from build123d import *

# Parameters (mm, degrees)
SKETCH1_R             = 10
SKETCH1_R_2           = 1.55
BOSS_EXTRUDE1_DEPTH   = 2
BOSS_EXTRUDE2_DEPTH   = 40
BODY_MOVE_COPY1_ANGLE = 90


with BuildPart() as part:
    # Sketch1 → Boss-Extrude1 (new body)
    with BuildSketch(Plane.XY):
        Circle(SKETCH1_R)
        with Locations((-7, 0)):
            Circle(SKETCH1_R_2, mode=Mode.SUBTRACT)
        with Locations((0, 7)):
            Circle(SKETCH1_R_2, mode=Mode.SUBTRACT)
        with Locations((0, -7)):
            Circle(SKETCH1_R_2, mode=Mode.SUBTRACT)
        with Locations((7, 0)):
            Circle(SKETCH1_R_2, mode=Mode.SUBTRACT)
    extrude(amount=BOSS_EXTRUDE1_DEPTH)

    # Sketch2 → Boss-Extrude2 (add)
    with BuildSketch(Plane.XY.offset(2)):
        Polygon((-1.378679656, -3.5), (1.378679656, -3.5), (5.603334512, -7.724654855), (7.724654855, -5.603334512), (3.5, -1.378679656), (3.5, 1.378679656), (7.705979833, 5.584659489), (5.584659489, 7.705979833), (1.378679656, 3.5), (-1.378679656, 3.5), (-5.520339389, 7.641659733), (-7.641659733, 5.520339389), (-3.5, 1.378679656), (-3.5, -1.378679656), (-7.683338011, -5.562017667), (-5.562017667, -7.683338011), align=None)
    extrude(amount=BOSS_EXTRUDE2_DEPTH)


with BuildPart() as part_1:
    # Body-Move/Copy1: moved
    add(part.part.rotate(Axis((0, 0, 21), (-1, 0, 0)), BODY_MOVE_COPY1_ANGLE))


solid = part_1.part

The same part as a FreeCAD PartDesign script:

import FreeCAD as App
import Part
import Sketcher
from FreeCAD import Vector

doc = App.newDocument("Part")
body = doc.addObject("PartDesign::Body", "Body")

# Sketch on XY plane
sketch1 = body.newObject("Sketcher::SketchObject", "Sketch")
sketch1.AttachmentSupport = (doc.getObject("XY_Plane"), [""])
sketch1.MapMode = "FlatFace"
sketch1.addGeometry([
    Part.Circle(Vector(0, 0, 0), Vector(0, 0, 1), 10),  # 0
    Part.Circle(Vector(0, -7, 0), Vector(0, 0, 1), 1.6),  # 1
    Part.Circle(Vector(-7, 0, 0), Vector(0, 0, 1), 1.6),  # 2
    Part.Circle(Vector(0, 7, 0), Vector(0, 0, 1), 1.6),  # 3
    Part.Circle(Vector(7, 0, 0), Vector(0, 0, 1), 1.6),  # 4
], False)
sketch1.addConstraint([
    Sketcher.Constraint("Coincident", 0, 3, -1, 1),
    Sketcher.Constraint("Equal", 1, 2),
    Sketcher.Constraint("Equal", 2, 3),
    Sketcher.Constraint("Equal", 3, 4),
    Sketcher.Constraint("Symmetric", 1, 3, 3, 3, -1, 1),
    Sketcher.Constraint("Symmetric", 2, 3, 4, 3, -1, 1),
    Sketcher.Constraint("PointOnObject", 1, 3, -2),
    Sketcher.Constraint("PointOnObject", 2, 3, -1),
    Sketcher.Constraint("Diameter", 0, 20.0),
    Sketcher.Constraint("Diameter", 1, 3.1),
    Sketcher.Constraint("DistanceY", 1, 3, -1, 1, 7.0),
    Sketcher.Constraint("DistanceX", 2, 3, -1, 1, 7.0),
])
pad1 = body.newObject("PartDesign::Pad", "Pad")
pad1.Profile = sketch1
pad1.Length = 2

# Sketch on XY plane
sketch2 = body.newObject("Sketcher::SketchObject", "Sketch001")
sketch2.AttachmentSupport = (doc.getObject("XY_Plane"), [""])
sketch2.MapMode = "FlatFace"
sketch2.AttachmentOffset = App.Placement(Vector(0, 0, 2), App.Rotation())
sketch2.addGeometry([
    Part.LineSegment(Vector(-1.4, -3.5, 0), Vector(1.4, -3.5, 0)),  # 0
    Part.LineSegment(Vector(1.4, -3.5, 0), Vector(5.6, -7.7, 0)),  # 1
    Part.LineSegment(Vector(5.6, -7.7, 0), Vector(7.7, -5.6, 0)),  # 2
    Part.LineSegment(Vector(7.7, -5.6, 0), Vector(3.5, -1.4, 0)),  # 3
    Part.LineSegment(Vector(3.5, -1.4, 0), Vector(3.5, 1.4, 0)),  # 4
    Part.LineSegment(Vector(3.5, 1.4, 0), Vector(7.7, 5.6, 0)),  # 5
    Part.LineSegment(Vector(7.7, 5.6, 0), Vector(5.6, 7.7, 0)),  # 6
    Part.LineSegment(Vector(5.6, 7.7, 0), Vector(1.4, 3.5, 0)),  # 7
    Part.LineSegment(Vector(1.4, 3.5, 0), Vector(-1.4, 3.5, 0)),  # 8
    Part.LineSegment(Vector(-1.4, 3.5, 0), Vector(-5.5, 7.6, 0)),  # 9
    Part.LineSegment(Vector(-5.5, 7.6, 0), Vector(-7.6, 5.5, 0)),  # 10
    Part.LineSegment(Vector(-7.6, 5.5, 0), Vector(-3.5, 1.4, 0)),  # 11
    Part.LineSegment(Vector(-3.5, 1.4, 0), Vector(-3.5, -1.4, 0)),  # 12
    Part.LineSegment(Vector(-3.5, -1.4, 0), Vector(-7.7, -5.6, 0)),  # 13
    Part.LineSegment(Vector(-7.7, -5.6, 0), Vector(-5.6, -7.7, 0)),  # 14
    Part.LineSegment(Vector(-5.6, -7.7, 0), Vector(-1.4, -3.5, 0)),  # 15
], False)
sketch2.addConstraint([
    Sketcher.Constraint("Coincident", 0, 2, 1, 1),
    Sketcher.Constraint("Coincident", 1, 2, 2, 1),
    Sketcher.Constraint("Coincident", 2, 2, 3, 1),
    Sketcher.Constraint("Coincident", 3, 2, 4, 1),
    Sketcher.Constraint("Coincident", 4, 2, 5, 1),
    Sketcher.Constraint("Coincident", 5, 2, 6, 1),
    Sketcher.Constraint("Coincident", 6, 2, 7, 1),
    Sketcher.Constraint("Coincident", 7, 2, 8, 1),
    Sketcher.Constraint("Coincident", 8, 2, 9, 1),
    Sketcher.Constraint("Coincident", 9, 2, 10, 1),
    Sketcher.Constraint("Coincident", 10, 2, 11, 1),
    Sketcher.Constraint("Coincident", 11, 2, 12, 1),
    Sketcher.Constraint("Coincident", 12, 2, 13, 1),
    Sketcher.Constraint("Coincident", 13, 2, 14, 1),
    Sketcher.Constraint("Coincident", 14, 2, 15, 1),
    Sketcher.Constraint("Coincident", 15, 2, 0, 1),
    Sketcher.Constraint("Horizontal", 0),
    Sketcher.Constraint("Vertical", 4),
    Sketcher.Constraint("Horizontal", 8),
    Sketcher.Constraint("Vertical", 12),
    Sketcher.Constraint("Symmetric", 0, 2, 8, 2, -1, 1),
    Sketcher.Constraint("Symmetric", 3, 2, 11, 2, -1, 1),
    Sketcher.Constraint("Perpendicular", 1, 2),
    Sketcher.Constraint("Perpendicular", 2, 3),
    Sketcher.Constraint("Perpendicular", 3, 5),
    Sketcher.Constraint("Perpendicular", 5, 6),
    Sketcher.Constraint("Perpendicular", 6, 7),
    Sketcher.Constraint("Perpendicular", 7, 9),
    Sketcher.Constraint("Perpendicular", 9, 10),
    Sketcher.Constraint("Perpendicular", 10, 11),
    Sketcher.Constraint("Perpendicular", 11, 13),
    Sketcher.Constraint("Perpendicular", 13, 14),
    Sketcher.Constraint("Perpendicular", 14, 15),
    Sketcher.Constraint("Horizontal", 4, 2, 11, 2),
    Sketcher.Constraint("Horizontal", 3, 2, 12, 2),
    Sketcher.Constraint("Vertical", 0, 2, 7, 2),
    Sketcher.Constraint("Vertical", 8, 2, 15, 2),
    Sketcher.Constraint("Equal", 8, 4),
    Sketcher.Constraint("Equal", 1, 3),
    Sketcher.Constraint("Equal", 5, 7),
    Sketcher.Constraint("Distance", 2, 3.0),
    Sketcher.Constraint("DistanceY", 0, 2, 7, 2, 7.0),
    Sketcher.Constraint("DistanceX", 9, 2, 6, 2, 11.104999),
    Sketcher.Constraint("DistanceX", 0, 2, 5, 2, 6.3273),
    Sketcher.Constraint("DistanceX", 13, 2, -1, 1, 7.683338),
    Sketcher.Constraint("Distance", 1, 5.974564),
])
pad2 = body.newObject("PartDesign::Pad", "Pad001")
pad2.Profile = sketch2
pad2.Length = 40
body2 = doc.addObject("PartDesign::Body", "Body001")
doc.recompute()

body.Placement = App.Placement(Vector(0, -21, 21), App.Rotation(Vector(-1, 0, 0), 90))
boolean = body2.newObject("PartDesign::Boolean", "Boolean")
boolean.Type = "Fuse"
boolean.addObjects([body])

doc.recompute()
